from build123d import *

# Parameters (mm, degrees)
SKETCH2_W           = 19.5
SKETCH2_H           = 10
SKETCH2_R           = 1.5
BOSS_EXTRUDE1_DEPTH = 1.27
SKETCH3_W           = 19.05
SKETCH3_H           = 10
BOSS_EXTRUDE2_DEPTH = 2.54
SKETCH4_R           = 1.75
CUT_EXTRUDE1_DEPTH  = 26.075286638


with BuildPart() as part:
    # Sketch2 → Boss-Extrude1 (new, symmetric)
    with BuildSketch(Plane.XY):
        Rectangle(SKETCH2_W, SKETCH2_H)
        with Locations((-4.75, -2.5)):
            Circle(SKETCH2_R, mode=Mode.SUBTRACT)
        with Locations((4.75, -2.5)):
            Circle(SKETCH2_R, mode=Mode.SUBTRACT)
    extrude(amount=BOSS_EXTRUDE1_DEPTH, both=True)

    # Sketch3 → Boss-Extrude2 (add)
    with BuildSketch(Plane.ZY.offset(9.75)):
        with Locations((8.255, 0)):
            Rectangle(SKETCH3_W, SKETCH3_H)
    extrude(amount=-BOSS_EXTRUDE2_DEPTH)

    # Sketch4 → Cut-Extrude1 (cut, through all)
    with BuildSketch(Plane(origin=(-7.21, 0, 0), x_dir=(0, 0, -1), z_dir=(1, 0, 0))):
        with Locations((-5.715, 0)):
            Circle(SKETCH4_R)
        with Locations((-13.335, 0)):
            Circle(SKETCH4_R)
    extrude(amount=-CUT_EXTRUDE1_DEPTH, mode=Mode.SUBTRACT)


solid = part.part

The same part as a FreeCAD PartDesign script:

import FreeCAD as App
import Part
import Sketcher
from FreeCAD import Vector
Q = App.Units.Quantity

doc = App.newDocument("Part")
body = doc.addObject("PartDesign::Body", "Body")

# Sketch on XY plane
sketch1 = body.newObject("Sketcher::SketchObject", "Sketch")
sketch1.AttachmentSupport = (doc.getObject("XY_Plane"), [""])
sketch1.MapMode = "FlatFace"
sketch1.addGeometry(Part.LineSegment(Vector(-9.8, 5, 0), Vector(-9.8, -5, 0)), False)
sketch1.addGeometry(Part.LineSegment(Vector(-9.8, -5, 0), Vector(9.8, -5, 0)), False)
sketch1.addGeometry(Part.LineSegment(Vector(9.8, -5, 0), Vector(9.8, 5, 0)), False)
sketch1.addGeometry(Part.LineSegment(Vector(9.8, 5, 0), Vector(-9.8, 5, 0)), False)
sketch1.addGeometry(Part.Circle(Vector(-4.8, -2.5, 0), Vector(0, 0, 1), 1.5), False)
sketch1.addGeometry(Part.Circle(Vector(4.8, -2.5, 0), Vector(0, 0, 1), 1.5), False)
sketch1.addConstraint(Sketcher.Constraint("Coincident", 0, 2, 1, 1))
sketch1.addConstraint(Sketcher.Constraint("Coincident", 1, 2, 2, 1))
sketch1.addConstraint(Sketcher.Constraint("Coincident", 2, 2, 3, 1))
sketch1.addConstraint(Sketcher.Constraint("Coincident", 3, 2, 0, 1))
sketch1.addConstraint(Sketcher.Constraint("Vertical", 0))
sketch1.addConstraint(Sketcher.Constraint("Horizontal", 1))
sketch1.addConstraint(Sketcher.Constraint("Vertical", 2))
sketch1.addConstraint(Sketcher.Constraint("Horizontal", 3))
sketch1.addConstraint(Sketcher.Constraint("Equal", 4, 5))
sketch1.addConstraint(Sketcher.Constraint("Symmetric", 0, 2, 2, 2, -1, 1))
sketch1.addConstraint(Sketcher.Constraint("Symmetric", 4, 3, 5, 3, -2))
sketch1.addConstraint(Sketcher.Constraint("Diameter", 4, Q("3 mm")))
sketch1.addConstraint(Sketcher.Constraint("DistanceY", 0, 2, 0, 1, Q("10 mm")))
sketch1.addConstraint(Sketcher.Constraint("DistanceX", 1, 1, 1, 2, Q("19.5 mm")))
sketch1.addConstraint(Sketcher.Constraint("DistanceX", 0, 2, 4, 3, Q("5 mm")))
sketch1.addConstraint(Sketcher.Constraint("DistanceY", 4, 3, -1, 1, Q("2.5 mm")))
pad1 = body.newObject("PartDesign::Pad", "Pad")
pad1.Profile = sketch1
pad1.Length = 2.54
pad1.Midplane = True

# Sketch on YZ plane
sketch2 = body.newObject("Sketcher::SketchObject", "Sketch001")
sketch2.AttachmentSupport = (doc.getObject("YZ_Plane"), [""])
sketch2.MapMode = "FlatFace"
sketch2.AttachmentOffset = App.Placement(Vector(0, 0, -9.75), App.Rotation())
sketch2.addGeometry(Part.LineSegment(Vector(5, -1, 0), Vector(-5, -1, 0)), False)
sketch2.addGeometry(Part.LineSegment(Vector(-5, -1, 0), Vector(-5, 18, 0)), False)
sketch2.addGeometry(Part.LineSegment(Vector(-5, 18, 0), Vector(5, 18, 0)), False)
sketch2.addGeometry(Part.LineSegment(Vector(5, 18, 0), Vector(5, -1, 0)), False)
sketch2.addConstraint(Sketcher.Constraint("Coincident", 0, 2, 1, 1))
sketch2.addConstraint(Sketcher.Constraint("Coincident", 1, 2, 2, 1))
sketch2.addConstraint(Sketcher.Constraint("Coincident", 2, 2, 3, 1))
sketch2.addConstraint(Sketcher.Constraint("Coincident", 3, 2, 0, 1))
sketch2.addConstraint(Sketcher.Constraint("Horizontal", 0))
sketch2.addConstraint(Sketcher.Constraint("Vertical", 1))
sketch2.addConstraint(Sketcher.Constraint("Horizontal", 2))
sketch2.addConstraint(Sketcher.Constraint("Vertical", 3))
sketch2.addConstraint(Sketcher.Constraint("DistanceX", 0, 2, 0, 1, Q("10 mm")))
sketch2.addConstraint(Sketcher.Constraint("DistanceX", 0, 2, -1, 1, Q("5 mm")))
sketch2.addConstraint(Sketcher.Constraint("DistanceY", 1, 1, 1, 2, Q("19.05 mm")))
sketch2.addConstraint(Sketcher.Constraint("DistanceY", 0, 2, -1, 1, Q("1.27 mm")))
pad2 = body.newObject("PartDesign::Pad", "Pad001")
pad2.Profile = sketch2
pad2.Length = 2.54

# Sketch on YZ plane
sketch3 = body.newObject("Sketcher::SketchObject", "Sketch002")
sketch3.AttachmentSupport = (doc.getObject("YZ_Plane"), [""])
sketch3.MapMode = "FlatFace"
sketch3.AttachmentOffset = App.Placement(Vector(0, 0, -7.21), App.Rotation())
sketch3.addGeometry(Part.Circle(Vector(0, 5.7, 0), Vector(0, 0, 1), 1.8), False)
sketch3.addGeometry(Part.Circle(Vector(0, 13.3, 0), Vector(0, 0, 1), 1.8), False)
sketch3.addConstraint(Sketcher.Constraint("Equal", 0, 1))
sketch3.addConstraint(Sketcher.Constraint("PointOnObject", 0, 3, -2))
sketch3.addConstraint(Sketcher.Constraint("PointOnObject", 1, 3, -2))
sketch3.addConstraint(Sketcher.Constraint("Diameter", 0, Q("3.5 mm")))
sketch3.addConstraint(Sketcher.Constraint("DistanceY", 0, 3, 1, 3, Q("7.62 mm")))
sketch3.addConstraint(Sketcher.Constraint("DistanceY", -1, 1, 0, 3, Q("5.715 mm")))
pocket1 = body.newObject("PartDesign::Pocket", "Pocket")
pocket1.Profile = sketch3
pocket1.Type = "ThroughAll"

doc.recompute()
